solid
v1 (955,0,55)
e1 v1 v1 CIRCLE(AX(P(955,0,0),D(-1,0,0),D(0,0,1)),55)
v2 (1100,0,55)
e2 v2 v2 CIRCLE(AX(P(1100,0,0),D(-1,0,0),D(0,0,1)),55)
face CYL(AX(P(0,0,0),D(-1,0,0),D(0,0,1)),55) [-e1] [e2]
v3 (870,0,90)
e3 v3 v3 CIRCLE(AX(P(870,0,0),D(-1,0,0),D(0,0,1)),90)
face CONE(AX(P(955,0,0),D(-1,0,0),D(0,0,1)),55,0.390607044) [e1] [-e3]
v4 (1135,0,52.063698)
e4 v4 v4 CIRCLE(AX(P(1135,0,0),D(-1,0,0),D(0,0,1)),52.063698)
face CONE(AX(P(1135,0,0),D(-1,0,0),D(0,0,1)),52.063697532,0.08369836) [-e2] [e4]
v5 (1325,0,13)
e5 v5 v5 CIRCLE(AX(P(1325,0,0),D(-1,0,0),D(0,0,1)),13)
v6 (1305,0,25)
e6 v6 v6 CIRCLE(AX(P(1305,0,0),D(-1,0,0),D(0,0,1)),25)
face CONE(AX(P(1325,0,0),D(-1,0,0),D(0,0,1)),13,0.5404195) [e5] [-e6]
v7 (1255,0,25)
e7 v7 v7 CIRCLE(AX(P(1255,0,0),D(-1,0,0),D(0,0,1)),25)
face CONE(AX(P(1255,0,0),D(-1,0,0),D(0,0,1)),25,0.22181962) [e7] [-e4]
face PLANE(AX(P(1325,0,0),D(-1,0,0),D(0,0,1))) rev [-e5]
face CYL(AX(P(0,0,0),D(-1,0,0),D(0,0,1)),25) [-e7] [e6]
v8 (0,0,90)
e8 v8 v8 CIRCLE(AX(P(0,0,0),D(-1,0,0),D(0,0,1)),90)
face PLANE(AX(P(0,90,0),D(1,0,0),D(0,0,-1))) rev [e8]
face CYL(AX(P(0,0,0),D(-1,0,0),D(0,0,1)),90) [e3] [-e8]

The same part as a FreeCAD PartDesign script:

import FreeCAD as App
import Part
import Sketcher

V = App.Vector
Q = App.Units.Quantity


def add_polygon(sketch, points):
    """Adds a closed chain of lines whose ends are joined by coincident constraints."""
    first, n = sketch.GeometryCount, len(points)
    for a, b in zip(points, points[1:] + points[:1]):
        sketch.addGeometry(Part.LineSegment(App.Vector(*a, 0), App.Vector(*b, 0)), False)
    for i in range(n):
        sketch.addConstraint(Sketcher.Constraint("Coincident", first + i, 2, first + (i + 1) % n, 1))

doc = App.newDocument("Part")
body = doc.addObject("PartDesign::Body", "Body")

sketch1 = body.newObject("Sketcher::SketchObject", "Sketch")
sketch1.AttachmentSupport = (doc.getObject("XY_Plane"), [""])
sketch1.MapMode = "FlatFace"
add_polygon(sketch1, [(0, 0), (1325, 0), (1325, 13), (1305, 25), (1255, 25), (1135, 52.063698), (1100, 55), (955, 55), (870, 90), (0, 90)])
sketch1.addConstraint([
    Sketcher.Constraint("Horizontal", 0),
    Sketcher.Constraint("Vertical", 1),
    Sketcher.Constraint("Horizontal", 3),
    Sketcher.Constraint("Horizontal", 6),
    Sketcher.Constraint("Horizontal", 8),
    Sketcher.Constraint("Vertical", 9),
    Sketcher.Constraint("Coincident", 9, 2, -1, 1),
    Sketcher.Constraint("DistanceX", 0, 1, 0, 2, Q("1325 mm")),
    Sketcher.Constraint("DistanceX", 3, 2, 3, 1, Q("50 mm")),
    Sketcher.Constraint("DistanceX", 6, 2, 6, 1, Q("145 mm")),
    Sketcher.Constraint("DistanceX", 8, 2, 8, 1, Q("870 mm")),
    Sketcher.Constraint("DistanceY", 1, 1, 1, 2, Q("13 mm")),
    Sketcher.Constraint("DistanceY", 9, 2, 9, 1, Q("90 mm")),
    Sketcher.Constraint("DistanceX", -1, 1, 2, 2, Q("1305 mm")),
    Sketcher.Constraint("DistanceY", -1, 1, 2, 2, Q("25 mm")),
    Sketcher.Constraint("DistanceX", -1, 1, 4, 2, Q("1135 mm")),
    Sketcher.Constraint("DistanceX", -1, 1, 5, 2, Q("1100 mm")),
    Sketcher.Constraint("DistanceY", -1, 1, 5, 2, Q("55 mm")),
    Sketcher.Constraint("Distance", 4, Q("123.013998 mm")),
])
revolution = body.newObject("PartDesign::Revolution", "Revolution")
revolution.Profile = sketch1
revolution.ReferenceAxis = (sketch1, ["H_Axis"])
revolution.Angle = 360

doc.recompute()
